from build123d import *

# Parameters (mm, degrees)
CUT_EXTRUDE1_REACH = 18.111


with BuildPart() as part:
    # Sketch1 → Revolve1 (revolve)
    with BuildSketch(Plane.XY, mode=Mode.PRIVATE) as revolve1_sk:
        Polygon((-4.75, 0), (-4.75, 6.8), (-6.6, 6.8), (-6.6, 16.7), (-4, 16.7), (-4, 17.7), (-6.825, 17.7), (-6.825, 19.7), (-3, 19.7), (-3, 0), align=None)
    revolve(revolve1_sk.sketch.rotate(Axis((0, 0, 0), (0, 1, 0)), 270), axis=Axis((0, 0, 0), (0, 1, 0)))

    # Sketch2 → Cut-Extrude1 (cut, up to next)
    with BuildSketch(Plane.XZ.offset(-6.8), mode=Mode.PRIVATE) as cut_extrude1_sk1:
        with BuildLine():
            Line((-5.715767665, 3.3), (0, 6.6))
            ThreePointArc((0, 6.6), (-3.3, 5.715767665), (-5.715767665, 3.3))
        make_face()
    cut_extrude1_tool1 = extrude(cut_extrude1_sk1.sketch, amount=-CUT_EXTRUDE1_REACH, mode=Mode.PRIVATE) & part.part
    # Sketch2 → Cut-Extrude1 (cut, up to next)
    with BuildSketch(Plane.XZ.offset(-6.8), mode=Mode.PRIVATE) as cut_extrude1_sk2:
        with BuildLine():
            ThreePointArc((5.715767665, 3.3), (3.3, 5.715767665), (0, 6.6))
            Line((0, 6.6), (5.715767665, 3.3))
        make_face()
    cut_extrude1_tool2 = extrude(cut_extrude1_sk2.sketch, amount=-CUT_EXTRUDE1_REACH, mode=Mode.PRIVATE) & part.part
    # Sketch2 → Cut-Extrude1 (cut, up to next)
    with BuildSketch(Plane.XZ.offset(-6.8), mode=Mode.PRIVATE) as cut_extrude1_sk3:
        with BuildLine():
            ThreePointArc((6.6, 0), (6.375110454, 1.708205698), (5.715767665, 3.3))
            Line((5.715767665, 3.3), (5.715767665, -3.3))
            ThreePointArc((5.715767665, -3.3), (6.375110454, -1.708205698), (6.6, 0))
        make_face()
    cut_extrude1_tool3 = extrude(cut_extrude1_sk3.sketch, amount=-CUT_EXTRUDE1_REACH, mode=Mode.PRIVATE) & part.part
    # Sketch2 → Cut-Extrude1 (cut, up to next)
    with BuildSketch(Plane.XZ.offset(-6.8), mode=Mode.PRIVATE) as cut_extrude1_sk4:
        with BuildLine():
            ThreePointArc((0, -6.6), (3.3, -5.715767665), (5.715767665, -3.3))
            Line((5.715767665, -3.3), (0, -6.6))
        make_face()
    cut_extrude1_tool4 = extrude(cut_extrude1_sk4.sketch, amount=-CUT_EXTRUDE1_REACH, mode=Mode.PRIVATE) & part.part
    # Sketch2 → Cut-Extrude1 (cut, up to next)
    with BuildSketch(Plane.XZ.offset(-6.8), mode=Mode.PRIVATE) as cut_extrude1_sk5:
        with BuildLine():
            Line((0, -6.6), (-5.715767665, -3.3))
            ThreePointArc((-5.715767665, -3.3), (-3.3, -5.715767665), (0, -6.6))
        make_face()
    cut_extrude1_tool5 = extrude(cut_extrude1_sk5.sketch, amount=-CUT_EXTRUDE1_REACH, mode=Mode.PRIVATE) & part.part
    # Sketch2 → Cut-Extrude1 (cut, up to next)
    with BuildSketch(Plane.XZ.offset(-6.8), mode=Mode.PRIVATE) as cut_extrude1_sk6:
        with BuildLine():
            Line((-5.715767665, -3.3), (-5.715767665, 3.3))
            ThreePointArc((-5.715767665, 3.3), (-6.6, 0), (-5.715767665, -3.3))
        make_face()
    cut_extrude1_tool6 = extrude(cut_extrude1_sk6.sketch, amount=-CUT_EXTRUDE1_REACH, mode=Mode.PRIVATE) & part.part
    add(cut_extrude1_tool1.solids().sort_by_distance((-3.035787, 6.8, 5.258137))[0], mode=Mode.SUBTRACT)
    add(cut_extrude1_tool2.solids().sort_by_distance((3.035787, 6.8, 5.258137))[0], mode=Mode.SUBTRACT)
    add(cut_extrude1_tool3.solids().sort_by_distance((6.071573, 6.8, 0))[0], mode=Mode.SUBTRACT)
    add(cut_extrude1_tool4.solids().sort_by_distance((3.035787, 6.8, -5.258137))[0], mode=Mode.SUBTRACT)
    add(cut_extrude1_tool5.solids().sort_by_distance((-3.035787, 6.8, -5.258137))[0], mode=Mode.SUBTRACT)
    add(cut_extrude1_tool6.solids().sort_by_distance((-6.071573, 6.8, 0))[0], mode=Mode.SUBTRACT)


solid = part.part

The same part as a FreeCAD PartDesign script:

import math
import FreeCAD as App
import Part
import Sketcher
from FreeCAD import Vector
Q = App.Units.Quantity


def add_polygon(sketch, points):
    """Adds a closed chain of lines whose ends are joined by coincident constraints."""
    first, n = sketch.GeometryCount, len(points)
    for a, b in zip(points, points[1:] + points[:1]):
        sketch.addGeometry(Part.LineSegment(App.Vector(*a, 0), App.Vector(*b, 0)), False)
    for i in range(n):
        sketch.addConstraint(Sketcher.Constraint("Coincident", first + i, 2, first + (i + 1) % n, 1))

doc = App.newDocument("Part")
body = doc.addObject("PartDesign::Body", "Body")

sketch1 = doc.addObject("Sketcher::SketchObject", "Sketch")
body.addObject(sketch1)
sketch1.AttachmentSupport = (doc.XY_Plane, [""])
sketch1.MapMode = "FlatFace"
add_polygon(sketch1, [(-4.8, 6.8), (-4.8, 0), (-3, 0), (-3, 19.7), (-6.8, 19.7), (-6.8, 17.7), (-4, 17.7), (-4, 16.7), (-6.6, 16.7), (-6.6, 6.8)])
sketch1.addConstraint(Sketcher.Constraint("Vertical", 0))
sketch1.addConstraint(Sketcher.Constraint("Horizontal", 1))
sketch1.addConstraint(Sketcher.Constraint("Vertical", 2))
sketch1.addConstraint(Sketcher.Constraint("Horizontal", 3))
sketch1.addConstraint(Sketcher.Constraint("Vertical", 4))
sketch1.addConstraint(Sketcher.Constraint("Horizontal", 5))
sketch1.addConstraint(Sketcher.Constraint("Vertical", 6))
sketch1.addConstraint(Sketcher.Constraint("Horizontal", 7))
sketch1.addConstraint(Sketcher.Constraint("Vertical", 8))
sketch1.addConstraint(Sketcher.Constraint("Horizontal", 9))
sketch1.addConstraint(Sketcher.Constraint("PointOnObject", 0, 2, -1))
sketch1.addConstraint(Sketcher.Constraint("DistanceY", 4, 2, 4, 1, 2.0))
sketch1.addConstraint(Sketcher.Constraint("DistanceY", 6, 2, 6, 1, 1.0))
sketch1.addConstraint(Sketcher.Constraint("DistanceX", 7, 2, 7, 1, 2.6))
sketch1.addConstraint(Sketcher.Constraint("DistanceY", 0, 2, 0, 1, 6.8))
sketch1.addConstraint(Sketcher.Constraint("DistanceY", 2, 1, 2, 2, 19.7))
sketch1.addConstraint(Sketcher.Constraint("DistanceX", 1, 2, -1, 1, 3.0))
sketch1.addConstraint(Sketcher.Constraint("DistanceX", 5, 2, -1, 1, 4.0))
sketch1.addConstraint(Sketcher.Constraint("DistanceX", 1, 1, 1, 2, 1.75))
sketch1.addConstraint(Sketcher.Constraint("DistanceX", 3, 2, 3, 1, 3.825))
revolution = doc.addObject("PartDesign::Revolution", "Revolution")
body.addObject(revolution)
revolution.Profile = sketch1
revolution.ReferenceAxis = (sketch1, ["V_Axis"])
revolution.Angle = 360

sketch2 = doc.addObject("Sketcher::SketchObject", "Sketch001")
body.addObject(sketch2)
sketch2.AttachmentSupport = (doc.XZ_Plane, [""])
sketch2.MapMode = "FlatFace"
sketch2.AttachmentOffset = App.Placement(Vector(0, 0, -6.8), App.Rotation())
sketch2.addGeometry(Part.LineSegment(Vector(-6, 3, 0), Vector(0, 7, 0)), False)
sketch2.addGeometry(Part.ArcOfCircle(Part.Circle(Vector(0, 0, 0), Vector(0, 0, 1), 7), math.radians(90), math.radians(150)), False)
sketch2.addConstraint(Sketcher.Constraint("Coincident", 0, 1, 1, 2))
sketch2.addConstraint(Sketcher.Constraint("Coincident", 1, 1, 0, 2))
sketch2.addConstraint(Sketcher.Constraint("Coincident", 1, 3, -1, 1))
sketch2.addConstraint(Sketcher.Constraint("PointOnObject", 1, 1, -2))
sketch2.addConstraint(Sketcher.Constraint("Radius", 1, 6.6))
sketch2.addConstraint(Sketcher.Constraint("Angle", 0, Q("30 deg")))
pocket1 = doc.addObject("PartDesign::Pocket", "Pocket")
body.addObject(pocket1)
pocket1.Profile = sketch2
pocket1.Type = "UpToFirst"

sketch3 = doc.addObject("Sketcher::SketchObject", "Sketch002")
body.addObject(sketch3)
sketch3.AttachmentSupport = (doc.XZ_Plane, [""])
sketch3.MapMode = "FlatFace"
sketch3.AttachmentOffset = App.Placement(Vector(0, 0, -6.8), App.Rotation())
sketch3.addGeometry(Part.ArcOfCircle(Part.Circle(Vector(0, 0, 0), Vector(0, 0, 1), 7), math.radians(30), math.radians(90)), False)
sketch3.addGeometry(Part.LineSegment(Vector(0, 7, 0), Vector(6, 3, 0)), False)
sketch3.addConstraint(Sketcher.Constraint("Coincident", 0, 1, 1, 2))
sketch3.addConstraint(Sketcher.Constraint("Coincident", 1, 1, 0, 2))
sketch3.addConstraint(Sketcher.Constraint("Coincident", 0, 3, -1, 1))
sketch3.addConstraint(Sketcher.Constraint("PointOnObject", 1, 1, -2))
sketch3.addConstraint(Sketcher.Constraint("Radius", 0, 6.6))
sketch3.addConstraint(Sketcher.Constraint("Angle", 1, Q("-30 deg")))
pocket2 = doc.addObject("PartDesign::Pocket", "Pocket001")
body.addObject(pocket2)
pocket2.Profile = sketch3
pocket2.Type = "UpToFirst"

sketch4 = doc.addObject("Sketcher::SketchObject", "Sketch003")
body.addObject(sketch4)
sketch4.AttachmentSupport = (doc.XZ_Plane, [""])
sketch4.MapMode = "FlatFace"
sketch4.AttachmentOffset = App.Placement(Vector(0, 0, -6.8), App.Rotation())
sketch4.addGeometry(Part.ArcOfCircle(Part.Circle(Vector(0, 0, 0), Vector(0, 0, 1), 6.6), math.radians(0), math.radians(30)), False)
sketch4.addGeometry(Part.LineSegment(Vector(5.7, 3.3, 0), Vector(5.7, -3.3, 0)), False)
sketch4.addGeometry(Part.ArcOfCircle(Part.Circle(Vector(0, 0, 0), Vector(0, 0, 1), 6.6), math.radians(-30), math.radians(0)), False)
sketch4.addConstraint(Sketcher.Constraint("Coincident", 0, 2, 1, 1))
sketch4.addConstraint(Sketcher.Constraint("Coincident", 1, 2, 2, 1))
sketch4.addConstraint(Sketcher.Constraint("Tangent", 2, 2, 0, 1))
sketch4.addConstraint(Sketcher.Constraint("Vertical", 1))
sketch4.addConstraint(Sketcher.Constraint("Coincident", 0, 3, -1, 1))
sketch4.addConstraint(Sketcher.Constraint("Equal", 0, 2))
sketch4.addConstraint(Sketcher.Constraint("PointOnObject", 2, 2, -1))
sketch4.addConstraint(Sketcher.Constraint("Radius", 0, 6.6))
sketch4.addConstraint(Sketcher.Constraint("DistanceY", 1, 2, 1, 1, 6.6))
pocket3 = doc.addObject("PartDesign::Pocket", "Pocket002")
body.addObject(pocket3)
pocket3.Profile = sketch4
pocket3.Type = "UpToFirst"

sketch5 = doc.addObject("Sketcher::SketchObject", "Sketch004")
body.addObject(sketch5)
sketch5.AttachmentSupport = (doc.XZ_Plane, [""])
sketch5.MapMode = "FlatFace"
sketch5.AttachmentOffset = App.Placement(Vector(0, 0, -6.8), App.Rotation())
sketch5.addGeometry(Part.ArcOfCircle(Part.Circle(Vector(0, 0, 0), Vector(0, 0, 1), 7), math.radians(-90), math.radians(-30)), False)
sketch5.addGeometry(Part.LineSegment(Vector(6, -3, 0), Vector(0, -7, 0)), False)
sketch5.addConstraint(Sketcher.Constraint("Coincident", 0, 1, 1, 2))
sketch5.addConstraint(Sketcher.Constraint("Coincident", 1, 1, 0, 2))
sketch5.addConstraint(Sketcher.Constraint("Coincident", 0, 3, -1, 1))
sketch5.addConstraint(Sketcher.Constraint("PointOnObject", 0, 1, -2))
sketch5.addConstraint(Sketcher.Constraint("Radius", 0, 6.6))
sketch5.addConstraint(Sketcher.Constraint("Angle", 1, Q("-150 deg")))
pocket4 = doc.addObject("PartDesign::Pocket", "Pocket003")
body.addObject(pocket4)
pocket4.Profile = sketch5
pocket4.Type = "UpToFirst"

sketch6 = doc.addObject("Sketcher::SketchObject", "Sketch005")
body.addObject(sketch6)
sketch6.AttachmentSupport = (doc.XZ_Plane, [""])
sketch6.MapMode = "FlatFace"
sketch6.AttachmentOffset = App.Placement(Vector(0, 0, -6.8), App.Rotation())
sketch6.addGeometry(Part.LineSegment(Vector(0, -7, 0), Vector(-6, -3, 0)), False)
sketch6.addGeometry(Part.ArcOfCircle(Part.Circle(Vector(0, 0, 0), Vector(0, 0, 1), 7), math.radians(-150), math.radians(-90)), False)
sketch6.addConstraint(Sketcher.Constraint("Coincident", 0, 1, 1, 2))
sketch6.addConstraint(Sketcher.Constraint("Coincident", 1, 1, 0, 2))
sketch6.addConstraint(Sketcher.Constraint("Coincident", 1, 3, -1, 1))
sketch6.addConstraint(Sketcher.Constraint("PointOnObject", 0, 1, -2))
sketch6.addConstraint(Sketcher.Constraint("Radius", 1, 6.6))
sketch6.addConstraint(Sketcher.Constraint("Angle", 0, Q("150 deg")))
pocket5 = doc.addObject("PartDesign::Pocket", "Pocket004")
body.addObject(pocket5)
pocket5.Profile = sketch6
pocket5.Type = "UpToFirst"

sketch7 = doc.addObject("Sketcher::SketchObject", "Sketch006")
body.addObject(sketch7)
sketch7.AttachmentSupport = (doc.XZ_Plane, [""])
sketch7.MapMode = "FlatFace"
sketch7.AttachmentOffset = App.Placement(Vector(0, 0, -6.8), App.Rotation())
sketch7.addGeometry(Part.LineSegment(Vector(-6, -3, 0), Vector(-6, 3, 0)), False)
sketch7.addGeometry(Part.ArcOfCircle(Part.Circle(Vector(0, 0, 0), Vector(0, 0, 1), 7), math.radians(150), math.radians(210)), False)
sketch7.addConstraint(Sketcher.Constraint("Coincident", 0, 1, 1, 2))
sketch7.addConstraint(Sketcher.Constraint("Coincident", 1, 1, 0, 2))
sketch7.addConstraint(Sketcher.Constraint("Vertical", 0))
sketch7.addConstraint(Sketcher.Constraint("Coincident", 1, 3, -1, 1))
sketch7.addConstraint(Sketcher.Constraint("Radius", 1, 6.6))
sketch7.addConstraint(Sketcher.Constraint("DistanceY", 0, 1, 0, 2, 6.6))
pocket6 = doc.addObject("PartDesign::Pocket", "Pocket005")
body.addObject(pocket6)
pocket6.Profile = sketch7
pocket6.Type = "UpToFirst"

doc.recompute()
